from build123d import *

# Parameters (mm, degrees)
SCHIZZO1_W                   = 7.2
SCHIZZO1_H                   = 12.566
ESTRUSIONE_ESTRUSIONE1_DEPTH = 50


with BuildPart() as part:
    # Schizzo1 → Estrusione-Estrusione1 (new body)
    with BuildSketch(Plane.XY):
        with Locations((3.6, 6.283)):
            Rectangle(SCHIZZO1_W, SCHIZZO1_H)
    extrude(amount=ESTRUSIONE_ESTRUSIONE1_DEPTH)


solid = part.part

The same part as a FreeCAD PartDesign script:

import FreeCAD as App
import Part
import Sketcher

V = App.Vector


def add_polygon(sketch, points):
    """Adds a closed chain of lines whose ends are joined by coincident constraints."""
    first, n = sketch.GeometryCount, len(points)
    for a, b in zip(points, points[1:] + points[:1]):
        sketch.addGeometry(Part.LineSegment(App.Vector(*a, 0), App.Vector(*b, 0)), False)
    for i in range(n):
        sketch.addConstraint(Sketcher.Constraint("Coincident", first + i, 2, first + (i + 1) % n, 1))

doc = App.newDocument("Part")
body = doc.addObject("PartDesign::Body", "Body")

# Sketch on XY plane
sketch1 = body.newObject("Sketcher::SketchObject", "Sketch")
sketch1.AttachmentSupport = (doc.getObject("XY_Plane"), [""])
sketch1.MapMode = "FlatFace"
add_polygon(sketch1, [(0, 13), (0, 0), (7, 0), (7, 13)])  # lines 0-3
sketch1.addConstraint([
    Sketcher.Constraint("Vertical", 0),
    Sketcher.Constraint("Horizontal", 1),
    Sketcher.Constraint("Vertical", 2),
    Sketcher.Constraint("Horizontal", 3),
    Sketcher.Constraint("Coincident", 0, 2, -1, 1),
    Sketcher.Constraint("DistanceX", 1, 1, 1, 2, 7.2),
    Sketcher.Constraint("DistanceY", 0, 2, 0, 1, 12.566),
])
pad1 = body.newObject("PartDesign::Pad", "Pad")
pad1.Profile = sketch1
pad1.Length = 50

doc.recompute()
